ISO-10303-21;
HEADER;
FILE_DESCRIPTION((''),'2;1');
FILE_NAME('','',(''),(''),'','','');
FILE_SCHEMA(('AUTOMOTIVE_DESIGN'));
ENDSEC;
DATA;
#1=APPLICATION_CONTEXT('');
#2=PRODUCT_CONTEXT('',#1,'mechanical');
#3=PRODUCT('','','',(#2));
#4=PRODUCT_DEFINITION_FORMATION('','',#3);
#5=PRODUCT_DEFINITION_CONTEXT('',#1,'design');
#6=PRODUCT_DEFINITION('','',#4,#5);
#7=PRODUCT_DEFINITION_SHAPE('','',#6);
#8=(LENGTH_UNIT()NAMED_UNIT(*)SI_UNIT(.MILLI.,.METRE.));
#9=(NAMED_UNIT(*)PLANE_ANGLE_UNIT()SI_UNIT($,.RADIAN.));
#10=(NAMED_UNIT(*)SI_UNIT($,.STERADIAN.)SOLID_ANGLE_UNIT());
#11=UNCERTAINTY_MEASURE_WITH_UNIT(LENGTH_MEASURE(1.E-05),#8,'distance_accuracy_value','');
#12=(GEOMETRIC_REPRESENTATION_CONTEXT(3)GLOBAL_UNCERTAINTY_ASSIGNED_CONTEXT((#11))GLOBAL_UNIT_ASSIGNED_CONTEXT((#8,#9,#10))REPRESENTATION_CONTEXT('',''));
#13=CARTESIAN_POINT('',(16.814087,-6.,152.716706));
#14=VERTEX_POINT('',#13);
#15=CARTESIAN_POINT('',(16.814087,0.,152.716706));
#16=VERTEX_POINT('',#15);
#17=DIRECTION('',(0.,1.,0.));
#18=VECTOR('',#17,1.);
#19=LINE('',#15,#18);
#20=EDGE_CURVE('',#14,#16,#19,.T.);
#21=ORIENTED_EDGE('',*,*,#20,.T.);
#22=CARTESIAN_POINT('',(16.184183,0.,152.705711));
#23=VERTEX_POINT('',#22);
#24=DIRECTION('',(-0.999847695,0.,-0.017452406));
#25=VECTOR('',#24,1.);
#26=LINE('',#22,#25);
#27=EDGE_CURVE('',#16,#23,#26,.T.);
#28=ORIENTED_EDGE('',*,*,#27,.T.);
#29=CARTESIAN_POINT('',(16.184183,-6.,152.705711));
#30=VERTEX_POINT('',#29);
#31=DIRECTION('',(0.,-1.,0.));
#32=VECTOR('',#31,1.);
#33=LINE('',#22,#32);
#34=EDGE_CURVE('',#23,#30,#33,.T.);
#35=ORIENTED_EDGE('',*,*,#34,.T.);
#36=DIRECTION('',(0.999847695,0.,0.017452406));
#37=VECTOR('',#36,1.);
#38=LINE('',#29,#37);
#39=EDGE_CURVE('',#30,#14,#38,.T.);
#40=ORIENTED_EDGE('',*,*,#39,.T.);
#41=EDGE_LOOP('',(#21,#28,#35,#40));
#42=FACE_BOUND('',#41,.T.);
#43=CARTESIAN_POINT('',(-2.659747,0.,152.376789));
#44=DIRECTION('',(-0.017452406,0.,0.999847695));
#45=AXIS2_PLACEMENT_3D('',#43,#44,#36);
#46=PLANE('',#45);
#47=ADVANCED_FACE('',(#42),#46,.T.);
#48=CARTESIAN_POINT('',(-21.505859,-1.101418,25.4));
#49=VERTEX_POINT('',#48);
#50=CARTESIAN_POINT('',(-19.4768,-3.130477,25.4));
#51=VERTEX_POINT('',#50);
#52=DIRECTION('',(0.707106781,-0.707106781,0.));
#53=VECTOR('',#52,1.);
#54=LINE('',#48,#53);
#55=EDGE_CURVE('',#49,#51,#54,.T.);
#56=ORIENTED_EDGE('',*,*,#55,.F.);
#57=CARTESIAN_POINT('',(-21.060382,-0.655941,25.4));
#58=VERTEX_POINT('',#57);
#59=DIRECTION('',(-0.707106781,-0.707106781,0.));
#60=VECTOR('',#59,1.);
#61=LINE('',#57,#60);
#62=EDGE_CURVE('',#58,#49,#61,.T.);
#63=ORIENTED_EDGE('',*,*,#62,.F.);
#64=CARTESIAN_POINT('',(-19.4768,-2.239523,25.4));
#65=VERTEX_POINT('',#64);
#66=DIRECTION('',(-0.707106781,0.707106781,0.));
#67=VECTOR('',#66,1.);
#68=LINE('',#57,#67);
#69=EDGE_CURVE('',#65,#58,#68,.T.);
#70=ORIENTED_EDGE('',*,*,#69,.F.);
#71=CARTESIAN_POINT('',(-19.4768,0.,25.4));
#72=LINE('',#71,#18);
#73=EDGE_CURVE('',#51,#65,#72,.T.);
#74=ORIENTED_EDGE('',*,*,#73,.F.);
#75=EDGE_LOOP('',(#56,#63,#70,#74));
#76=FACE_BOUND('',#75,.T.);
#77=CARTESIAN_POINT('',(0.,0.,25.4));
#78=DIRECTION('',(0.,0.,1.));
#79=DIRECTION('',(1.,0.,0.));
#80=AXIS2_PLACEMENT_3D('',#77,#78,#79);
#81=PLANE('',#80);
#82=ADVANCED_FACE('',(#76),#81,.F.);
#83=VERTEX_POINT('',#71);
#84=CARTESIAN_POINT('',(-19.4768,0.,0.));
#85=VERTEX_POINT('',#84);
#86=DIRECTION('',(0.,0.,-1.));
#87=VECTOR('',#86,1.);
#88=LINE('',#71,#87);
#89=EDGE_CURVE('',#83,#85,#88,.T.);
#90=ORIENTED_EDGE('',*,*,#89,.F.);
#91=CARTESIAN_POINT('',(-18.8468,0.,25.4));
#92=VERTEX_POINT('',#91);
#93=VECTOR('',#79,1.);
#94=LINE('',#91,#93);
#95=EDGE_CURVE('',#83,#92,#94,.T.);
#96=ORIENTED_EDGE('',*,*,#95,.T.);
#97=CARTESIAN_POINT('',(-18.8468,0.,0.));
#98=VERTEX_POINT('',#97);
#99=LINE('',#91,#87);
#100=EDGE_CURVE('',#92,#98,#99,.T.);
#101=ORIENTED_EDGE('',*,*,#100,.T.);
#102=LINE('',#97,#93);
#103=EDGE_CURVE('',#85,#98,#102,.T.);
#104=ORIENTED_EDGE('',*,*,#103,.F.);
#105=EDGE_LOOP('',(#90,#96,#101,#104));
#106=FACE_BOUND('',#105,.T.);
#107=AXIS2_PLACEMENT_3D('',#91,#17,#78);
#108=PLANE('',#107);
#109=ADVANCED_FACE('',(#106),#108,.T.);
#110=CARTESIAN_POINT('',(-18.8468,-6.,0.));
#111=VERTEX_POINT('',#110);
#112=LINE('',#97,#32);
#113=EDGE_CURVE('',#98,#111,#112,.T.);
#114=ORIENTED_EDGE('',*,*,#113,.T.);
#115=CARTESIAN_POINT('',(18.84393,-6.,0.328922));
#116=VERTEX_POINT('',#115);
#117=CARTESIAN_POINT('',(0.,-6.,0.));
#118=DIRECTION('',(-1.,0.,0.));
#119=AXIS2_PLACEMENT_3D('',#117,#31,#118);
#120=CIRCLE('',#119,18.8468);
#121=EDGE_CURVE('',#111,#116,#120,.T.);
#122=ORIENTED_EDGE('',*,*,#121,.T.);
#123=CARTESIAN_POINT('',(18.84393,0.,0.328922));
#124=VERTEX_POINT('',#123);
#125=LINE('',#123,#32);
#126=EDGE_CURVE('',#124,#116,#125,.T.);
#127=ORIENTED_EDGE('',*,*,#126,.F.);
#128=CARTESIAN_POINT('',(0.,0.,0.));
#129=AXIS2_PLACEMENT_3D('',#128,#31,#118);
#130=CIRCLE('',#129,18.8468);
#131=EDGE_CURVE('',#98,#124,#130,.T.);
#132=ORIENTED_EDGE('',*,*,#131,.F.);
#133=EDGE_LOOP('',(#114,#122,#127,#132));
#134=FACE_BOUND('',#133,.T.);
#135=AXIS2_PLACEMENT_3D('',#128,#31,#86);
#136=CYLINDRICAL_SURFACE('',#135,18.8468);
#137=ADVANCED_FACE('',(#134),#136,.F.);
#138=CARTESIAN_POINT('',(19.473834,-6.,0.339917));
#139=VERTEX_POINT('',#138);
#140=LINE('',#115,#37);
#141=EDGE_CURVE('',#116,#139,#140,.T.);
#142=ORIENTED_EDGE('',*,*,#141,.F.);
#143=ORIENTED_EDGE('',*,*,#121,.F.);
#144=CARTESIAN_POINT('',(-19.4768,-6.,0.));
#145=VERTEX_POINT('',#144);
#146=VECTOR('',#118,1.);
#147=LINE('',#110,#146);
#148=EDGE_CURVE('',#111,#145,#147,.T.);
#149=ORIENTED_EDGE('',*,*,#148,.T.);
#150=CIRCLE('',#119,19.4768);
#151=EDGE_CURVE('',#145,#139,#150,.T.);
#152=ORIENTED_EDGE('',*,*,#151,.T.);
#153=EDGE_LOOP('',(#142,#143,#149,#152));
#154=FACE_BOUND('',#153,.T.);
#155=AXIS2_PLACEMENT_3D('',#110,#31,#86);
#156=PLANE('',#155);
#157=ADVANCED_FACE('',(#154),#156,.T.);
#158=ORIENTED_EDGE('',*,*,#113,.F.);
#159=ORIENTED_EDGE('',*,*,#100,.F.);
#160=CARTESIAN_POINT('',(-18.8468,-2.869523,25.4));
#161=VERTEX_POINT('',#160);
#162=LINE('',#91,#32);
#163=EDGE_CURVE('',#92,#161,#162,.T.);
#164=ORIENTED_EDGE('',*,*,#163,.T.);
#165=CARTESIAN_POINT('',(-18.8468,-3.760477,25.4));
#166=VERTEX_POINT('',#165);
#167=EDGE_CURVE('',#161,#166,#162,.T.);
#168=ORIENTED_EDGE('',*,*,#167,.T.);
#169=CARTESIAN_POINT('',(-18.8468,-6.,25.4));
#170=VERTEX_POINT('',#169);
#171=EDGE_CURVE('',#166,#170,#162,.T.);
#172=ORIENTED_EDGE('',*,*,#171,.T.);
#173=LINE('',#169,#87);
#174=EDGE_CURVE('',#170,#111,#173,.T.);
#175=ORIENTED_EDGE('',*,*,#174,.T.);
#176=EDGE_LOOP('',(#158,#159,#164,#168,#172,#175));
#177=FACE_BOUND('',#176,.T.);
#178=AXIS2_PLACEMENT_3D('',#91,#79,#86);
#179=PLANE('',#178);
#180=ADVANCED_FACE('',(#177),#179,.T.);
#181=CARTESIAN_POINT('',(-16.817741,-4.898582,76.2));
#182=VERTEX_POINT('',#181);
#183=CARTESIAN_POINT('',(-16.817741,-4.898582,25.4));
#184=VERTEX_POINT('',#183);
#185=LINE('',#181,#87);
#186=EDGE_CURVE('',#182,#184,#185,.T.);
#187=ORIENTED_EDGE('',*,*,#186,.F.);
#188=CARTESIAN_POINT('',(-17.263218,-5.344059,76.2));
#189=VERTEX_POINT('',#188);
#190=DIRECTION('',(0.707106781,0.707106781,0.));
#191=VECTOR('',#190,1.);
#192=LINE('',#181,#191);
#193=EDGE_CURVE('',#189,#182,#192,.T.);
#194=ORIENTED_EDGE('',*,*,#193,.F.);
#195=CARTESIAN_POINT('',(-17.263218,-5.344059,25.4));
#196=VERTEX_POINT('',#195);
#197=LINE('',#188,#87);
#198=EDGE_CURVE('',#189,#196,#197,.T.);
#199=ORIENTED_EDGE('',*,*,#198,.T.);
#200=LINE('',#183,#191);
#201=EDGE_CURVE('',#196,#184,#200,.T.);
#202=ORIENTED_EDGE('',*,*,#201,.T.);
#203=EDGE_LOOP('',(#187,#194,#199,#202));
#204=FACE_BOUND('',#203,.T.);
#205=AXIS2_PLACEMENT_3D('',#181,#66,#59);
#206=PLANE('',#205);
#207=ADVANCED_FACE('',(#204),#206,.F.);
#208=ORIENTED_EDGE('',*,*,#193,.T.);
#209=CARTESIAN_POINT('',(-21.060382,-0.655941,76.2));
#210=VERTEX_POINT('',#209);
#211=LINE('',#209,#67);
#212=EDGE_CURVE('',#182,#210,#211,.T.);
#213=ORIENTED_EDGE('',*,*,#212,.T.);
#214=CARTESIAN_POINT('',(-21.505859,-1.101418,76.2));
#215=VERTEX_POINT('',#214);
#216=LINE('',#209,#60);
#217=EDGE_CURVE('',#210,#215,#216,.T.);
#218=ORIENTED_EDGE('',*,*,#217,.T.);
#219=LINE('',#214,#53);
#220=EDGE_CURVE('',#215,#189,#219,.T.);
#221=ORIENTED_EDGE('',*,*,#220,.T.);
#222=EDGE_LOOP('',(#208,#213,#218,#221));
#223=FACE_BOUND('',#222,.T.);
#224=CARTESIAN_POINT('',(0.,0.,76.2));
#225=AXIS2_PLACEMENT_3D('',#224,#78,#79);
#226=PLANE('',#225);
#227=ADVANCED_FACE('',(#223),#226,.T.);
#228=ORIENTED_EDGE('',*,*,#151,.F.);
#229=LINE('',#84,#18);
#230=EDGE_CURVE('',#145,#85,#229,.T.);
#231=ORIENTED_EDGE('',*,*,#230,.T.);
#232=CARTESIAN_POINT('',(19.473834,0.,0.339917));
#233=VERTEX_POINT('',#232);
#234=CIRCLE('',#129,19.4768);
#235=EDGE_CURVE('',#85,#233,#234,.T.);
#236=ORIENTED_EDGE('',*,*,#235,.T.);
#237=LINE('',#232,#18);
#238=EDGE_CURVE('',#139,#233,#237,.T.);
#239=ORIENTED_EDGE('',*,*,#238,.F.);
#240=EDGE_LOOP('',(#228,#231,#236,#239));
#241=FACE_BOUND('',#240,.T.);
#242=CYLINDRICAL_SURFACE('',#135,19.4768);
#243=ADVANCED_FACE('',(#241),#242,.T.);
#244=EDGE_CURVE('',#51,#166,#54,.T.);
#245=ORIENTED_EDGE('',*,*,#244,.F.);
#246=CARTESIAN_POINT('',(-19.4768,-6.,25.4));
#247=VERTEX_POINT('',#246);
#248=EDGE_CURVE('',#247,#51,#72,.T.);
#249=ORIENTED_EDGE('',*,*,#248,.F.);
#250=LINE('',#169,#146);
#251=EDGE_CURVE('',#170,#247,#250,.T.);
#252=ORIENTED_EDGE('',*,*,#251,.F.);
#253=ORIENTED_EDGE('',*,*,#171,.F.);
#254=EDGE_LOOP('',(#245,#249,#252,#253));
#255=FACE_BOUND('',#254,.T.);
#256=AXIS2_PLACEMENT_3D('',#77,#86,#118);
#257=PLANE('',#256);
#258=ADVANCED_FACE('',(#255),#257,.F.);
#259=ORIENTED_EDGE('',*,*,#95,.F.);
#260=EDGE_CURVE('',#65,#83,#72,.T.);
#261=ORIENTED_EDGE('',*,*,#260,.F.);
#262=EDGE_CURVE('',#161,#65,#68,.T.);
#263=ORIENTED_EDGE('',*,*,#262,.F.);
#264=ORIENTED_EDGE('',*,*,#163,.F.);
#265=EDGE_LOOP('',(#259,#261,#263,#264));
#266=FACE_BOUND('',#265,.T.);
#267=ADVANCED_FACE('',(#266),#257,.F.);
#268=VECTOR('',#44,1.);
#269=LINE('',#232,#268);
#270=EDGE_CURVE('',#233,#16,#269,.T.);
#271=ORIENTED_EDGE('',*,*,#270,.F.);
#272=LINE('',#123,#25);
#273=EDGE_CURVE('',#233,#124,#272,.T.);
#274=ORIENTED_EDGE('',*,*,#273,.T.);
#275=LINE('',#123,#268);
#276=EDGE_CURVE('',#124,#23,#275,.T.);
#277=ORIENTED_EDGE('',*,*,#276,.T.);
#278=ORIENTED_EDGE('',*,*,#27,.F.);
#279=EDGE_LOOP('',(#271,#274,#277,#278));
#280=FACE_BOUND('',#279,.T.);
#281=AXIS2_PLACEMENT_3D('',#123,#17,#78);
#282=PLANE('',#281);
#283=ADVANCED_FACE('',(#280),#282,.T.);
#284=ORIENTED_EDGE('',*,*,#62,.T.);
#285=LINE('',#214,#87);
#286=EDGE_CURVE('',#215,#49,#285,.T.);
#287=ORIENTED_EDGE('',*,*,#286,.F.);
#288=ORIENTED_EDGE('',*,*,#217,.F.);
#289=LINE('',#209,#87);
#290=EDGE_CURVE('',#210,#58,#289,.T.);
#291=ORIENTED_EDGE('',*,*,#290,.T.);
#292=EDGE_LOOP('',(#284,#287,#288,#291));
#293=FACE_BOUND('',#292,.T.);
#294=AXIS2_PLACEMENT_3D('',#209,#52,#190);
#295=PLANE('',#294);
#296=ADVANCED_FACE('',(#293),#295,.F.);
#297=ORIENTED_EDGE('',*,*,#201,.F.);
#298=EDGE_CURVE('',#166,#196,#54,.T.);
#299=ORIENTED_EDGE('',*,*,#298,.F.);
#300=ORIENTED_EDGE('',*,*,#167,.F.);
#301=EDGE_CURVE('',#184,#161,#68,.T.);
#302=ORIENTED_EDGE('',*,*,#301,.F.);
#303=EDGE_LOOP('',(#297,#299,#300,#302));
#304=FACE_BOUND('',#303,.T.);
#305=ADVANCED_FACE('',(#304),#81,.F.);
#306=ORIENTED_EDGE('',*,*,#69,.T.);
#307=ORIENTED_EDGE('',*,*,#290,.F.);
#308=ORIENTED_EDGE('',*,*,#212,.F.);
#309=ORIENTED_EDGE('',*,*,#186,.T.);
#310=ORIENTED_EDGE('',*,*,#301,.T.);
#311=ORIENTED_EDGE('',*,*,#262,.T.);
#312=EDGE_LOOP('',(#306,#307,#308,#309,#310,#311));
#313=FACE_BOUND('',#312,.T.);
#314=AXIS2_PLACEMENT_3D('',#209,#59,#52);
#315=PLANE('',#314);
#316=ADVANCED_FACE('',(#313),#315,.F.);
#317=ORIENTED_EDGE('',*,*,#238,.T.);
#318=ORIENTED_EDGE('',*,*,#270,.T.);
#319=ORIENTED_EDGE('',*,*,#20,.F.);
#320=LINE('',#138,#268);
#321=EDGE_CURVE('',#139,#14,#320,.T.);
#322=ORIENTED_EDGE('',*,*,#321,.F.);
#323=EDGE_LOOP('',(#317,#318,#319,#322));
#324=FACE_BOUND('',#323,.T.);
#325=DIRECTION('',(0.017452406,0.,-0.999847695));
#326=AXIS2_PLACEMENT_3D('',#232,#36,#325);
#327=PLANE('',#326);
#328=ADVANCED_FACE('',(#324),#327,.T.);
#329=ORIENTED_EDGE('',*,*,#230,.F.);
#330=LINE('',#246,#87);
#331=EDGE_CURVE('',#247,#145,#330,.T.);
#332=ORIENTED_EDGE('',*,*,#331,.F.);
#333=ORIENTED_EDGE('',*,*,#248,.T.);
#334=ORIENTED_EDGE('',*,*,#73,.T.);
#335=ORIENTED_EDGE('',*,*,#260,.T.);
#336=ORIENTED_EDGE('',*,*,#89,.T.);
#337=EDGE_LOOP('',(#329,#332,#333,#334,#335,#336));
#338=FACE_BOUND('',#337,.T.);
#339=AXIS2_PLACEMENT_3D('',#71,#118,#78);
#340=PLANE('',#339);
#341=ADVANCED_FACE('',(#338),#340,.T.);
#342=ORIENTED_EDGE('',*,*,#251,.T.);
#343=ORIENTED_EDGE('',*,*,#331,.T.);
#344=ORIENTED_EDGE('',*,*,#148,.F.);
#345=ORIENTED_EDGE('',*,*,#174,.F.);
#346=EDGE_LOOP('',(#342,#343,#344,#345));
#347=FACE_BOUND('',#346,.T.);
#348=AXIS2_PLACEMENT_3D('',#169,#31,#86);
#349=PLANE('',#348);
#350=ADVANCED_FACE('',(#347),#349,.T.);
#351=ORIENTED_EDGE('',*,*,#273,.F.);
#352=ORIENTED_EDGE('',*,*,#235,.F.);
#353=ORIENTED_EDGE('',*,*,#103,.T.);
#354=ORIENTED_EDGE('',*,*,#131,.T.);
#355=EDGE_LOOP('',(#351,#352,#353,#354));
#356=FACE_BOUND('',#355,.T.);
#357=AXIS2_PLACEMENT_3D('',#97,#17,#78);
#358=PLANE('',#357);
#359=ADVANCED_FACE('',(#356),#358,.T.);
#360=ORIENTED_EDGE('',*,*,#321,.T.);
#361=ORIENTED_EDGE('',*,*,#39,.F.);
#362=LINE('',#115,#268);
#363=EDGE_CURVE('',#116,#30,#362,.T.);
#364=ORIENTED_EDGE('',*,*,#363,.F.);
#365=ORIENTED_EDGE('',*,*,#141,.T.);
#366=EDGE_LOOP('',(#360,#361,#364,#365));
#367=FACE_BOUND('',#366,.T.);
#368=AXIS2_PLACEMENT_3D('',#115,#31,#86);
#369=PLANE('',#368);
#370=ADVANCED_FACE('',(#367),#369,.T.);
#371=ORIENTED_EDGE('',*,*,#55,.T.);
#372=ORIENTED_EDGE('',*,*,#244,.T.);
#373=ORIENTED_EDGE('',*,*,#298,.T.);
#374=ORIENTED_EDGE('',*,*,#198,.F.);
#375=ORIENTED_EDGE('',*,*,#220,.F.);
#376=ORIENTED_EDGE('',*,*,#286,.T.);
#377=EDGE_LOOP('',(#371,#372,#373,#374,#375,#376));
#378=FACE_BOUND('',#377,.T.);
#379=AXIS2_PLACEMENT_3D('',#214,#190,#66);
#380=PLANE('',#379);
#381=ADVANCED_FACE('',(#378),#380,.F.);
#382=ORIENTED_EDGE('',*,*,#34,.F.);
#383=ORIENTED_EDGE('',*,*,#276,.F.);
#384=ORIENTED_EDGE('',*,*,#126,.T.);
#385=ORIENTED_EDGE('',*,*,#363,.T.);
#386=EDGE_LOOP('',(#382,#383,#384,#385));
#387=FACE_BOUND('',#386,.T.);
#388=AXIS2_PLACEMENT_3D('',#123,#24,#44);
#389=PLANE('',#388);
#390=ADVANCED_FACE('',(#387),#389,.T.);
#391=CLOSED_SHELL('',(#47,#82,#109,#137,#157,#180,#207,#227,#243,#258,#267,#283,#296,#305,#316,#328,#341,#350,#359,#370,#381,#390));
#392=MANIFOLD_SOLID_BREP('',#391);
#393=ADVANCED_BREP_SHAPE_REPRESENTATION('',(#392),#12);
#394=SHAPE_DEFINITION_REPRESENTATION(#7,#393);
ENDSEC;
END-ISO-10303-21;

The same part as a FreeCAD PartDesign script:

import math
import FreeCAD as App
import Part
import Sketcher

V = App.Vector
Q = App.Units.Quantity

doc = App.newDocument("Part")
params = doc.addObject("Spreadsheet::Sheet", "Params")
for row, (alias, value) in enumerate([
    ("sketch2_height", "1 in"),
    ("sketch2_length", "6 in"),
    ("sketch2_radius", "0.742 in"),
    ("pad1_length", "2 in"),
], start=1):
    params.set(f"A{row}", alias)
    params.set(f"B{row}", "=" + value)
    params.setAlias(f"B{row}", alias)

body = doc.addObject("PartDesign::Body", "Body")

sketch1 = doc.addObject("Sketcher::SketchObject", "Sketch")
body.addObject(sketch1)
sketch1.AttachmentSupport = (doc.XY_Plane, [""])
sketch1.MapMode = "FlatFace"
sketch1.AttachmentOffset = App.Placement(V(0, 0, 1 * 25.4), App.Rotation())
sketch1.addGeometry(Part.LineSegment(V(-18.8, 0, 0), V(-18.8, -6, 0)), False)
sketch1.addGeometry(Part.LineSegment(V(-18.8, -6, 0), V(-19.5, -6, 0)), False)
sketch1.addGeometry(Part.LineSegment(V(-19.5, -6, 0), V(-19.5, 0, 0)), False)
sketch1.addGeometry(Part.LineSegment(V(-19.5, 0, 0), V(-18.8, 0, 0)), False)
sketch1.addConstraint(Sketcher.Constraint("Coincident", 0, 2, 1, 1))
sketch1.addConstraint(Sketcher.Constraint("Coincident", 1, 2, 2, 1))
sketch1.addConstraint(Sketcher.Constraint("Coincident", 2, 2, 3, 1))
sketch1.addConstraint(Sketcher.Constraint("Coincident", 3, 2, 0, 1))
sketch1.addConstraint(Sketcher.Constraint("Vertical", 0))
sketch1.addConstraint(Sketcher.Constraint("Horizontal", 1))
sketch1.addConstraint(Sketcher.Constraint("Vertical", 2))
sketch1.addConstraint(Sketcher.Constraint("Horizontal", 3))
sketch1.addConstraint(Sketcher.Constraint("PointOnObject", 2, 2, -1))
sketch1.addConstraint(Sketcher.Constraint("DistanceX", 0, 2, -1, 1, Q("0.742 in")))
sketch1.addConstraint(Sketcher.Constraint("DistanceX", 1, 2, 1, 1, 0.63))
sketch1.addConstraint(Sketcher.Constraint("DistanceY", 0, 2, 0, 1, 6.0))

sketch2 = doc.addObject("Sketcher::SketchObject", "Sketch001")
body.addObject(sketch2)
sketch2.AttachmentSupport = (doc.XZ_Plane, [""])
sketch2.MapMode = "FlatFace"
sketch2.addGeometry(Part.LineSegment(V(-19, 25, 0), V(-19, 0, 0)), False)
sketch2.addGeometry(Part.ArcOfCircle(Part.Circle(V(0, 0, 0), V(0, 0, 1), 19), math.radians(180), math.radians(361)), False)
sketch2.addGeometry(Part.LineSegment(V(19, 0, 0), V(16, 153, 0)), False)
sketch2.addConstraint(Sketcher.Constraint("Tangent", 0, 2, 1, 1))
sketch2.addConstraint(Sketcher.Constraint("Tangent", 1, 2, 2, 1))
sketch2.addConstraint(Sketcher.Constraint("Vertical", 0))
sketch2.addConstraint(Sketcher.Constraint("Coincident", 1, 3, -1, 1))
sketch2.addConstraint(Sketcher.Constraint("DistanceY", 0, 2, 0, 1, Q("1 in")))
sketch2.addConstraint(Sketcher.Constraint("Distance", 2, Q("6 in")))
sketch2.addConstraint(Sketcher.Constraint("Angle", 2, Q("91 deg")))
sketch2.addConstraint(Sketcher.Constraint("Radius", 1, Q("0.742 in")))
sketch2.setExpression("Constraints[4]", "Params.sketch2_height")
sketch2.setExpression("Constraints[5]", "Params.sketch2_length")
sketch2.setExpression("Constraints[7]", "Params.sketch2_radius")
doc.recompute()

additivepipe = doc.addObject("PartDesign::AdditivePipe", "AdditivePipe")
body.addObject(additivepipe)
additivepipe.Profile = sketch1
additivepipe.Spine = (sketch2, ["Edge1", "Edge2", "Edge3"])

sketch3 = doc.addObject("Sketcher::SketchObject", "Sketch002")
body.addObject(sketch3)
sketch3.AttachmentSupport = (doc.XY_Plane, [""])
sketch3.MapMode = "FlatFace"
sketch3.AttachmentOffset = App.Placement(V(0, 0, 1 * 25.4), App.Rotation())
sketch3.addGeometry(Part.LineSegment(V(-16.8, -4.9, 0), V(-21.1, -0.7, 0)), False)
sketch3.addGeometry(Part.LineSegment(V(-21.1, -0.7, 0), V(-21.5, -1.1, 0)), False)
sketch3.addGeometry(Part.LineSegment(V(-21.5, -1.1, 0), V(-17.3, -5.3, 0)), False)
sketch3.addGeometry(Part.LineSegment(V(-17.3, -5.3, 0), V(-16.8, -4.9, 0)), False)
sketch3.addConstraint(Sketcher.Constraint("Coincident", 0, 2, 1, 1))
sketch3.addConstraint(Sketcher.Constraint("Coincident", 1, 2, 2, 1))
sketch3.addConstraint(Sketcher.Constraint("Coincident", 2, 2, 3, 1))
sketch3.addConstraint(Sketcher.Constraint("Coincident", 3, 2, 0, 1))
sketch3.addConstraint(Sketcher.Constraint("Perpendicular", 0, 1))
sketch3.addConstraint(Sketcher.Constraint("Perpendicular", 1, 2))
sketch3.addConstraint(Sketcher.Constraint("Perpendicular", 2, 3))
sketch3.addConstraint(Sketcher.Constraint("Angle", 0, Q("135 deg")))
sketch3.addConstraint(Sketcher.Constraint("Distance", 0, 6.0))
sketch3.addConstraint(Sketcher.Constraint("Distance", 1, 0.63))
sketch3.addConstraint(Sketcher.Constraint("DistanceX", 0, 2, -1, 1, 21.060382))
sketch3.addConstraint(Sketcher.Constraint("DistanceY", 0, 2, -1, 1, 0.655941))
pad1 = doc.addObject("PartDesign::Pad", "Pad")
body.addObject(pad1)
pad1.Profile = sketch3
pad1.setExpression("Length", "Params.pad1_length")

doc.recompute()
